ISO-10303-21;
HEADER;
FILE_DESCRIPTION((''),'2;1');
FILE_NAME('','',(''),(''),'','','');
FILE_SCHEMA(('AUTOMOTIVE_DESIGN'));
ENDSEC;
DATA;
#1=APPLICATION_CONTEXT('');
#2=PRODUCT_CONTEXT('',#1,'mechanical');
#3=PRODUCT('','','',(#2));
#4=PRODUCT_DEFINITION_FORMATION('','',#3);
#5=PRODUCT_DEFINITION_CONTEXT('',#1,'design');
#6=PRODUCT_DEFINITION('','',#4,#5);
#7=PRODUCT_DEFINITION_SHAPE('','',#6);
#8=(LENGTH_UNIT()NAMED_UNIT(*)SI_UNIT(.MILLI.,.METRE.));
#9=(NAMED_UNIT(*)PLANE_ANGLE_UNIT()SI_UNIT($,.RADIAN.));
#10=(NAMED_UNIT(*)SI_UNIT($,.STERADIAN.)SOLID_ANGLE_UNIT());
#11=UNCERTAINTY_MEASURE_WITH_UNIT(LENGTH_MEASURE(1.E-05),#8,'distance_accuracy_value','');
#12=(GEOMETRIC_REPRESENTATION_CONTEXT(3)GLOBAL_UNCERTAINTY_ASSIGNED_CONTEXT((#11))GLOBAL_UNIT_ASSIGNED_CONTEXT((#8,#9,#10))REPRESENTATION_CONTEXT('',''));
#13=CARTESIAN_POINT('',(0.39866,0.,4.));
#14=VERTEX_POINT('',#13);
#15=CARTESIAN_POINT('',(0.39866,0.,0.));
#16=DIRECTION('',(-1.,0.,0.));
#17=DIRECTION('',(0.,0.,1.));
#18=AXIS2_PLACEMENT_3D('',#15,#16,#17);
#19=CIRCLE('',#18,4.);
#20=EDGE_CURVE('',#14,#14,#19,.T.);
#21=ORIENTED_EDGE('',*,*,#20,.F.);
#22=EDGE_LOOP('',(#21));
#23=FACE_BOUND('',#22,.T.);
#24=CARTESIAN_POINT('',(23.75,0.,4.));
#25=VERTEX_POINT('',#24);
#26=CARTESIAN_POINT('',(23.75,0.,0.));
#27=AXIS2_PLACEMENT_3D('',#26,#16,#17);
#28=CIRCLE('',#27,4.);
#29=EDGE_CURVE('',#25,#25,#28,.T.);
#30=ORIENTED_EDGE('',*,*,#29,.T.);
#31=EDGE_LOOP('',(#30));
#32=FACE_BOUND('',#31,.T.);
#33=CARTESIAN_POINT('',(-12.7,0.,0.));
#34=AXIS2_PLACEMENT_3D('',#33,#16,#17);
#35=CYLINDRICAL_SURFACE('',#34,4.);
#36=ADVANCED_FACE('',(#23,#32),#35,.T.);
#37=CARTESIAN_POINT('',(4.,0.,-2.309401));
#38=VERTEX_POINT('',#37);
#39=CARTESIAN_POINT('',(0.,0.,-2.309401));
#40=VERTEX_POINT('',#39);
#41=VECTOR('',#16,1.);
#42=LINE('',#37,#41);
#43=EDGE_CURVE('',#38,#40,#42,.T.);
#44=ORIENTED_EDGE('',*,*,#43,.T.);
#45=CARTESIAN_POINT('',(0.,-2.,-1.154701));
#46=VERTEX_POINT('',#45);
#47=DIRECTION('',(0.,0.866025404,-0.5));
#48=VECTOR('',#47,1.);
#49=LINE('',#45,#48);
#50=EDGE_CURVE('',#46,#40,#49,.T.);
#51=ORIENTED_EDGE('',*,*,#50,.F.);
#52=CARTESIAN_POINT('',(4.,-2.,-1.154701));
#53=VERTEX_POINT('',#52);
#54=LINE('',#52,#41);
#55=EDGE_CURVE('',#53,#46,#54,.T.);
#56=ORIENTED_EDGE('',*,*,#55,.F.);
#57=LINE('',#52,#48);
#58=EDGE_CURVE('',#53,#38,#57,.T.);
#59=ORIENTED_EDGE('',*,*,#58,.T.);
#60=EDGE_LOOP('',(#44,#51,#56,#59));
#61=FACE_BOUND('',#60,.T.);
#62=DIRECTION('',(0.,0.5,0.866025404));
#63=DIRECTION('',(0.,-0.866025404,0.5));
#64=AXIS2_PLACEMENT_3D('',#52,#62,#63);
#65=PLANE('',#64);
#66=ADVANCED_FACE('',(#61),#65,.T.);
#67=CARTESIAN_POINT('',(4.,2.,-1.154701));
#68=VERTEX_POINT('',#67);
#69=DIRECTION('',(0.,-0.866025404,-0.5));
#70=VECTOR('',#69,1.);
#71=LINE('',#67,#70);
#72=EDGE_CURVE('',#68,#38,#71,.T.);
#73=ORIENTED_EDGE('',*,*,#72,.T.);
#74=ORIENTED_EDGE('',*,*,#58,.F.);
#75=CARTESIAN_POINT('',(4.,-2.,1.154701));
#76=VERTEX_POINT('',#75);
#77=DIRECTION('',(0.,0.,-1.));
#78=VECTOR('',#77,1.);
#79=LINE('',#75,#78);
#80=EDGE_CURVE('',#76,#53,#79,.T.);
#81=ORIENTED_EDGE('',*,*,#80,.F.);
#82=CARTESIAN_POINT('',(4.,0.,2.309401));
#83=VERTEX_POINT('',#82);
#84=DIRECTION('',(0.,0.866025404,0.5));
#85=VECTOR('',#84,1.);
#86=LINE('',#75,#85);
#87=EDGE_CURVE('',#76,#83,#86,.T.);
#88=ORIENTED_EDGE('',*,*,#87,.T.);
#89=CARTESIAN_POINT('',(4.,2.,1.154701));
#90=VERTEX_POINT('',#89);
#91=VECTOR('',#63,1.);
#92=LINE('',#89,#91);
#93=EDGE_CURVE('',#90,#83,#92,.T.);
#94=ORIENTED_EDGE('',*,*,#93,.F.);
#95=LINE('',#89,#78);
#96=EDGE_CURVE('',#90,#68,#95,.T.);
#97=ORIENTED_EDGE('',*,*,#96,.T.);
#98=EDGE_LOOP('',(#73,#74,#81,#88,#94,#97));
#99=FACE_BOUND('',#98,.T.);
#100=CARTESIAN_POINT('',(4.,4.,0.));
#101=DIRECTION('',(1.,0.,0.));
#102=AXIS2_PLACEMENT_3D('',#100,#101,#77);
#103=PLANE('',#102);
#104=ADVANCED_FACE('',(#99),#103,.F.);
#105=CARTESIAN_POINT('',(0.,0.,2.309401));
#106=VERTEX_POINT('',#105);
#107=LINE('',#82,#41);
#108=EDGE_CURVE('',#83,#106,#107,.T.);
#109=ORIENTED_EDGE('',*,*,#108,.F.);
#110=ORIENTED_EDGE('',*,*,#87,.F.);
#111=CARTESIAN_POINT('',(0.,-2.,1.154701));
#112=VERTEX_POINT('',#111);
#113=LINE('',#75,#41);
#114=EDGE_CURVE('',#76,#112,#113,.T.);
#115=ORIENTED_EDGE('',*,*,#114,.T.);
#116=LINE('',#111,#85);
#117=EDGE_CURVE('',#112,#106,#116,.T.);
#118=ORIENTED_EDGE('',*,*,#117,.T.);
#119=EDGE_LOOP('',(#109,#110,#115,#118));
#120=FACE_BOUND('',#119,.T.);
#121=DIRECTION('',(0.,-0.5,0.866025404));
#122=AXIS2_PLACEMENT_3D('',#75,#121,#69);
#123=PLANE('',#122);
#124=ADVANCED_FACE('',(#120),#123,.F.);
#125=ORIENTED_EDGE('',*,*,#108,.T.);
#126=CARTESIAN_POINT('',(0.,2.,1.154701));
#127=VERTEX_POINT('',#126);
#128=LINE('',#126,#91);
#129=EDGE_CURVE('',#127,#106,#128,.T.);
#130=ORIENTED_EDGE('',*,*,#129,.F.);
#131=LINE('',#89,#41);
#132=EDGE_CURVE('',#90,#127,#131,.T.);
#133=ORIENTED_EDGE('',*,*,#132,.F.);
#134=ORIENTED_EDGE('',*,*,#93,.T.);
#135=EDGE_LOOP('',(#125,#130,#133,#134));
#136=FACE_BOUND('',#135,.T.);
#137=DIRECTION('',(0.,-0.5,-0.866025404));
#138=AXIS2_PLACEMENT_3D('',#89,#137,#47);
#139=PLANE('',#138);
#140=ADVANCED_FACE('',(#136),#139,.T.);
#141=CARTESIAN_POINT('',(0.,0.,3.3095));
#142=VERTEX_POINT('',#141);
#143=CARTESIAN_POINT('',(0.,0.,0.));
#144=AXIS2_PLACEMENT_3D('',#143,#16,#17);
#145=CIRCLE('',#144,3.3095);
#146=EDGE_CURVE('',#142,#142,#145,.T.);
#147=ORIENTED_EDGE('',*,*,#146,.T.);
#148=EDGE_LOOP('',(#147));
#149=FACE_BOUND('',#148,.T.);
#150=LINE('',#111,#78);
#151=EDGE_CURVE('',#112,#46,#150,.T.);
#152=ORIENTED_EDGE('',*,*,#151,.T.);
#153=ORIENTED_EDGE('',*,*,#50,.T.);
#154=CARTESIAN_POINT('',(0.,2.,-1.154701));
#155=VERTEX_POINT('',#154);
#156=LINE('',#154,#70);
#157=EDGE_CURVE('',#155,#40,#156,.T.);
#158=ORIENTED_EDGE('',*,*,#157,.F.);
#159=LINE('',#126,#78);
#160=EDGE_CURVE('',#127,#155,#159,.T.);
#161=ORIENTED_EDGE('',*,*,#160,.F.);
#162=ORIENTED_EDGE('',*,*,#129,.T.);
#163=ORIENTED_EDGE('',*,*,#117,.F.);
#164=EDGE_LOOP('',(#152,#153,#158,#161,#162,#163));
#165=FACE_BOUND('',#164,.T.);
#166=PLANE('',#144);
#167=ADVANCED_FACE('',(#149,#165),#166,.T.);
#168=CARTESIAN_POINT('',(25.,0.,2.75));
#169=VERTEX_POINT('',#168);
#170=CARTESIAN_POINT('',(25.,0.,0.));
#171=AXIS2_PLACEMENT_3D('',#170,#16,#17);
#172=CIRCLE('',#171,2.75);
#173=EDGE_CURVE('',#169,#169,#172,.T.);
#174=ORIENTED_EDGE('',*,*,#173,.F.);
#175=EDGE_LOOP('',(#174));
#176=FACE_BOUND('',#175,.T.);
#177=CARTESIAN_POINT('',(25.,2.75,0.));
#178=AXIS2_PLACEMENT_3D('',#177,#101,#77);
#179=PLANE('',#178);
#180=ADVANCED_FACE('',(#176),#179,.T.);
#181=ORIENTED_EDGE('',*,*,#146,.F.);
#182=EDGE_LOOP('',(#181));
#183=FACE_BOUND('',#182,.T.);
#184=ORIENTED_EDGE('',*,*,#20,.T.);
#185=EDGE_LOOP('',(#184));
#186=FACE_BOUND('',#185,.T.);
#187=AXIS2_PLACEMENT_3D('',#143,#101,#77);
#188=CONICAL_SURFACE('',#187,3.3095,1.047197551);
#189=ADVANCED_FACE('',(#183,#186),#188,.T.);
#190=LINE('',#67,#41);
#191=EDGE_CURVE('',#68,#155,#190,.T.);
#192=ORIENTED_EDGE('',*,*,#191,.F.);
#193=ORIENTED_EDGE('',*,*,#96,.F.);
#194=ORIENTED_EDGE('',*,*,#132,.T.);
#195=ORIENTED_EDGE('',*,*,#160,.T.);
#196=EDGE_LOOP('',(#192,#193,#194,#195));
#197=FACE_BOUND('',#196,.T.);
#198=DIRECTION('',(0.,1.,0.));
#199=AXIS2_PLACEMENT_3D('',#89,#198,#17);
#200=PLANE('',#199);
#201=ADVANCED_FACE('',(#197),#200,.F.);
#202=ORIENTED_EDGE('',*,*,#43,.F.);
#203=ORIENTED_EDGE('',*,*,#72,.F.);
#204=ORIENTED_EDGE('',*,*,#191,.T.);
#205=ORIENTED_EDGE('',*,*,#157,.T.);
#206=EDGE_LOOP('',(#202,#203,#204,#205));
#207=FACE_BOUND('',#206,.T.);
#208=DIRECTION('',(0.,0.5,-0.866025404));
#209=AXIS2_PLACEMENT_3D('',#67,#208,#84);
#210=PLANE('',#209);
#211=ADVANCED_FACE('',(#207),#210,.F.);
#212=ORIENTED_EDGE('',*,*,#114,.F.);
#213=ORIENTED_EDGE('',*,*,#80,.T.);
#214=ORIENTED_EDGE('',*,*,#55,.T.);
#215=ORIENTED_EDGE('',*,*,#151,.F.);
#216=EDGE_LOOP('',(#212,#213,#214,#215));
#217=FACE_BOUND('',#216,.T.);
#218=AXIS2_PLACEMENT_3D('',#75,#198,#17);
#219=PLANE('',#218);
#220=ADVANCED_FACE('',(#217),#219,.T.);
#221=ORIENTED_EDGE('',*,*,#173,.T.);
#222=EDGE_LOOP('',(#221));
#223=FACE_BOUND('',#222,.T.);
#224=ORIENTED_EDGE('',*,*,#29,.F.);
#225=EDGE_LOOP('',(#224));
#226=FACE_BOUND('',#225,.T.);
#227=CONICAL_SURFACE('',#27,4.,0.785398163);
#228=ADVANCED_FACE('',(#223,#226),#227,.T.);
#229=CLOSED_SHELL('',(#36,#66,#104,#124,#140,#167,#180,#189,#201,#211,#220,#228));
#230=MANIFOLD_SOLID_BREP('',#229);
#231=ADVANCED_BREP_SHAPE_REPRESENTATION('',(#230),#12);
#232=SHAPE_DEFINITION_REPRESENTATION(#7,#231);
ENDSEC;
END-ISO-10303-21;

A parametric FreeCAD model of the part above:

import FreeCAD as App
import Part
import Sketcher
Q = App.Units.Quantity


def add_polygon(sketch, points):
    """Adds a closed chain of lines whose ends are joined by coincident constraints."""
    first, n = sketch.GeometryCount, len(points)
    for a, b in zip(points, points[1:] + points[:1]):
        sketch.addGeometry(Part.LineSegment(App.Vector(*a, 0), App.Vector(*b, 0)), False)
    for i in range(n):
        sketch.addConstraint(Sketcher.Constraint("Coincident", first + i, 2, first + (i + 1) % n, 1))

doc = App.newDocument("Part")
body = doc.addObject("PartDesign::Body", "Body")

sketch1 = body.newObject("Sketcher::SketchObject", "Sketch")
sketch1.AttachmentSupport = (doc.getObject("XY_Plane"), [""])
sketch1.MapMode = "FlatFace"
add_polygon(sketch1, [(0, 3.3), (0, 0), (25, 0), (25, 2.8), (23.8, 4), (0.4, 4)])
sketch1.addConstraint([
    Sketcher.Constraint("Vertical", 0),
    Sketcher.Constraint("Horizontal", 1),
    Sketcher.Constraint("Vertical", 2),
    Sketcher.Constraint("Horizontal", 4),
    Sketcher.Constraint("Coincident", 0, 2, -1, 1),
    Sketcher.Constraint("DistanceX", 1, 1, 1, 2, Q("25 mm")),
    Sketcher.Constraint("Angle", 3, Q("135 deg")),
    Sketcher.Constraint("Angle", 5, Q("-120 deg")),
    Sketcher.Constraint("DistanceY", -1, 1, 3, 2, Q("4 mm")),
    Sketcher.Constraint("DistanceY", 2, 1, 2, 2, Q("2.75 mm")),
    Sketcher.Constraint("DistanceY", 0, 2, 0, 1, Q("3.3095 mm")),
])
revolution = body.newObject("PartDesign::Revolution", "Revolution")
revolution.Profile = sketch1
revolution.ReferenceAxis = (sketch1, ["H_Axis"])
revolution.Angle = 360

sketch2 = body.newObject("Sketcher::SketchObject", "Sketch001")
sketch2.AttachmentSupport = (doc.getObject("YZ_Plane"), [""])
sketch2.MapMode = "FlatFace"
add_polygon(sketch2, [(2, 1.2), (2, -1.2), (0, -2.3), (-2, -1.2), (-2, 1.2), (0, 2.3)])
sketch2.addConstraint([
    Sketcher.Constraint("Vertical", 0),
    Sketcher.Constraint("Vertical", 3),
    Sketcher.Constraint("Symmetric", 0, 2, 3, 2, -1, 1),
    Sketcher.Constraint("Symmetric", 1, 2, 4, 2, -1, 1),
    Sketcher.Constraint("PointOnObject", 1, 2, -2),
    Sketcher.Constraint("Parallel", 2, 5),
    Sketcher.Constraint("Horizontal", 0, 2, 2, 2),
    Sketcher.Constraint("Angle", 1, Q("-150 deg")),
    Sketcher.Constraint("DistanceX", -1, 1, 0, 2, Q("2 mm")),
    Sketcher.Constraint("DistanceY", 0, 2, 0, 1, Q("2.309401 mm")),
])
pocket1 = body.newObject("PartDesign::Pocket", "Pocket")
pocket1.Profile = sketch2
pocket1.Length = 4
pocket1.Reversed = True

doc.recompute()
